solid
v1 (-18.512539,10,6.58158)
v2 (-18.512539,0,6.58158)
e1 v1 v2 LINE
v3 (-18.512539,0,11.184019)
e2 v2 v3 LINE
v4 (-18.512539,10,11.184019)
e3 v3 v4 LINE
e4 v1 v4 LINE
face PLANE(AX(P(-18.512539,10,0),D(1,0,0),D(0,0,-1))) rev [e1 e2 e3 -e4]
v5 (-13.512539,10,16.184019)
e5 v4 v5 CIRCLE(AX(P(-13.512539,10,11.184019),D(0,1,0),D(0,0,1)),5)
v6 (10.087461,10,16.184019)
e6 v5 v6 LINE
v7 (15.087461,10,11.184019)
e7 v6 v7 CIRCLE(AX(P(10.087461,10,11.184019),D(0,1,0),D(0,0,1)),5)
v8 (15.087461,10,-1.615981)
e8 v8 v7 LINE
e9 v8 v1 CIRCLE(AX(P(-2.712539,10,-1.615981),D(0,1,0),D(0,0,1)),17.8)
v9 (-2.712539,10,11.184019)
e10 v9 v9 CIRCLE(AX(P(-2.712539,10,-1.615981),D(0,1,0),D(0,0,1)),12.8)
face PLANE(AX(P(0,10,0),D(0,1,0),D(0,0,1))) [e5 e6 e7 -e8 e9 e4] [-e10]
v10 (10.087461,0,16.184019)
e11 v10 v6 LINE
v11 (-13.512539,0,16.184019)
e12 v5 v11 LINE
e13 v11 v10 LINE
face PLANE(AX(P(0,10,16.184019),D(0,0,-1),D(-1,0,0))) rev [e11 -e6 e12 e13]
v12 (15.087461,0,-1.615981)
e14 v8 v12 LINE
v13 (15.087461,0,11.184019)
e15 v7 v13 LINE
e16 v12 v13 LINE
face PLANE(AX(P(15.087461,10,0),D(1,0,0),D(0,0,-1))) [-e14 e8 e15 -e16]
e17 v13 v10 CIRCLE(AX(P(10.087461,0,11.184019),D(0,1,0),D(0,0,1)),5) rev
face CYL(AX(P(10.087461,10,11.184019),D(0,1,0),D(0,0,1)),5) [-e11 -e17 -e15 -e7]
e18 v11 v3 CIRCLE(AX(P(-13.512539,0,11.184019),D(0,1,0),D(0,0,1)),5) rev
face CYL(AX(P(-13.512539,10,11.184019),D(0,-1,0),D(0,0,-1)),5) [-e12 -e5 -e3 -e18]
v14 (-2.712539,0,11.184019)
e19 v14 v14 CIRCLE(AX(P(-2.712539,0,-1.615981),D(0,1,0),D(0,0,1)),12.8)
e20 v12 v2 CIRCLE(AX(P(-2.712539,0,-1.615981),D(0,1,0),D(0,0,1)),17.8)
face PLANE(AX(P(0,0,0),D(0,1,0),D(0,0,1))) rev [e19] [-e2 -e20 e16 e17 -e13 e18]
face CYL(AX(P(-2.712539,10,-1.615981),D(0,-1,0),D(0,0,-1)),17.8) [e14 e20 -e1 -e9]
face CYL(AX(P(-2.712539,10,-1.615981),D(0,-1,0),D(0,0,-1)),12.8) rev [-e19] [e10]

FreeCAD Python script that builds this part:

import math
import FreeCAD as App
import Part
import Sketcher


def edges_at(feature, points):
    """Names of the edges that pass closest to the given points."""
    edges = feature.Shape.Edges
    near = lambda p: min(range(len(edges)), key=lambda i: edges[i].distToShape(Part.Vertex(*p))[0])
    return sorted({f"Edge{near(p) + 1}" for p in points})

doc = App.newDocument("Part")
body = doc.addObject("PartDesign::Body", "Body")

# Sketch on XZ plane
sketch1 = doc.addObject("Sketcher::SketchObject", "Sketch")
body.addObject(sketch1)
sketch1.AttachmentSupport = (doc.XZ_Plane, [""])
sketch1.MapMode = "FlatFace"
sketch1.addGeometry(Part.LineSegment(App.Vector(15, 16, 0), App.Vector(15, -2, 0)), False)
sketch1.addGeometry(Part.ArcOfCircle(Part.Circle(App.Vector(-3, -2, 0), App.Vector(0, 0, 1), 18), math.radians(153), math.radians(360)), False)
sketch1.addGeometry(Part.LineSegment(App.Vector(-19, 7, 0), App.Vector(-19, 16, 0)), False)
sketch1.addGeometry(Part.LineSegment(App.Vector(-19, 16, 0), App.Vector(15, 16, 0)), False)
sketch1.addGeometry(Part.Circle(App.Vector(-3, -2, 0), App.Vector(0, 0, 1), 13), False)
sketch1.addConstraint(Sketcher.Constraint("Tangent", 0, 2, 1, 2))
sketch1.addConstraint(Sketcher.Constraint("Coincident", 1, 1, 2, 1))
sketch1.addConstraint(Sketcher.Constraint("Coincident", 2, 2, 3, 1))
sketch1.addConstraint(Sketcher.Constraint("Coincident", 3, 2, 0, 1))
sketch1.addConstraint(Sketcher.Constraint("Vertical", 0))
sketch1.addConstraint(Sketcher.Constraint("Vertical", 2))
sketch1.addConstraint(Sketcher.Constraint("Horizontal", 3))
sketch1.addConstraint(Sketcher.Constraint("Coincident", 4, 3, 1, 3))
sketch1.addConstraint(Sketcher.Constraint("Diameter", 4, 25.6))
sketch1.addConstraint(Sketcher.Constraint("Radius", 1, 17.8))
sketch1.addConstraint(Sketcher.Constraint("DistanceX", 3, 1, 3, 2, 33.6))
sketch1.addConstraint(Sketcher.Constraint("DistanceY", 0, 2, 0, 1, 17.8))
sketch1.addConstraint(Sketcher.Constraint("DistanceX", 1, 3, -1, 1, 2.712539))
sketch1.addConstraint(Sketcher.Constraint("DistanceY", 1, 3, -1, 1, 1.615981))
pad1 = doc.addObject("PartDesign::Pad", "Pad")
body.addObject(pad1)
pad1.Profile = sketch1
pad1.Length = 10
pad1.Reversed = True
doc.recompute()

fillet = doc.addObject("PartDesign::Fillet", "Fillet")
body.addObject(fillet)
fillet.Base = (pad1, edges_at(pad1, [(15.087, 5, 16.184), (-18.513, 5, 16.184)]))
fillet.Radius = 5

doc.recompute()
